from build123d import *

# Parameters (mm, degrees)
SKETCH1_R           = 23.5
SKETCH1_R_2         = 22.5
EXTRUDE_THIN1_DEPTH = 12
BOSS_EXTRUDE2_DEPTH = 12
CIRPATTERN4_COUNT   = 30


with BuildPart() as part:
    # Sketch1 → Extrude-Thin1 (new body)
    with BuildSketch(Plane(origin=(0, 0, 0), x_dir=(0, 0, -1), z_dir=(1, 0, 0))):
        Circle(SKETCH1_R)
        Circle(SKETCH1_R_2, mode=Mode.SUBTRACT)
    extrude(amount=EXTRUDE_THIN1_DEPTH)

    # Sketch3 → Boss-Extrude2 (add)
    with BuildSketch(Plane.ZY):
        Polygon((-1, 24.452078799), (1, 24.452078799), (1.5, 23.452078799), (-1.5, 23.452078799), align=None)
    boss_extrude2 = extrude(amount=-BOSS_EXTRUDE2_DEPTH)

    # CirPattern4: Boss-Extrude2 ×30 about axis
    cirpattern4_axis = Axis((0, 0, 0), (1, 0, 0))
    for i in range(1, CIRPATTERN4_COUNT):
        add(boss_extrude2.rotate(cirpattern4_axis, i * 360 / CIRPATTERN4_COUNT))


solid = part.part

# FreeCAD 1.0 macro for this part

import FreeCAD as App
import Part
import Sketcher

doc = App.newDocument("Part")
body = doc.addObject("PartDesign::Body", "Body")

sketch1 = body.newObject("Sketcher::SketchObject", "Sketch")
sketch1.AttachmentSupport = (doc.getObject("YZ_Plane"), [""])
sketch1.MapMode = "FlatFace"
sketch1.addGeometry([
    Part.Circle(App.Vector(0, 0, 0), App.Vector(0, 0, 1), 23.5),
    Part.Circle(App.Vector(0, 0, 0), App.Vector(0, 0, 1), 22.5),
], False)
sketch1.addConstraint([
    Sketcher.Constraint("Coincident", 0, 3, -1, 1),
    Sketcher.Constraint("Coincident", 1, 3, -1, 1),
    Sketcher.Constraint("Diameter", 0, 47.0),
    Sketcher.Constraint("Diameter", 1, 45.0),
])
pad1 = body.newObject("PartDesign::Pad", "Pad")
pad1.Profile = sketch1
pad1.Length = 12

sketch2 = body.newObject("Sketcher::SketchObject", "Sketch001")
sketch2.AttachmentSupport = (doc.getObject("YZ_Plane"), [""])
sketch2.MapMode = "FlatFace"
sketch2.addGeometry([
    Part.LineSegment(App.Vector(24.452079, 1, 0), App.Vector(24.452079, -1, 0)),
    Part.LineSegment(App.Vector(24.452079, -1, 0), App.Vector(23.452079, -1.5, 0)),
    Part.LineSegment(App.Vector(23.452079, -1.5, 0), App.Vector(23.452079, 1.5, 0)),
    Part.LineSegment(App.Vector(23.452079, 1.5, 0), App.Vector(24.452079, 1, 0)),
], False)
sketch2.addConstraint([
    Sketcher.Constraint("Coincident", 0, 2, 1, 1),
    Sketcher.Constraint("Coincident", 1, 2, 2, 1),
    Sketcher.Constraint("Coincident", 2, 2, 3, 1),
    Sketcher.Constraint("Coincident", 3, 2, 0, 1),
    Sketcher.Constraint("Vertical", 0),
    Sketcher.Constraint("Vertical", 2),
    Sketcher.Constraint("Equal", 1, 3),
    Sketcher.Constraint("DistanceY", 0, 2, 0, 1, 2.0),
    Sketcher.Constraint("DistanceY", 2, 1, 2, 2, 3.0),
    Sketcher.Constraint("DistanceY", 0, 2, -1, 1, 1.0),
    Sketcher.Constraint("DistanceX", 1, 2, 0, 2, 1.0),
    Sketcher.Constraint("DistanceX", -1, 1, 0, 2, 24.452079),
])
pad2 = body.newObject("PartDesign::Pad", "Pad001")
pad2.Profile = sketch2
pad2.Length = 12
doc.recompute()

polarpattern = body.newObject("PartDesign::PolarPattern", "PolarPattern")
polarpattern.Originals = [pad2]
polarpattern.Axis = (doc.getObject("X_Axis"), [""])
polarpattern.Angle = 360
polarpattern.Occurrences = 30
body.Tip = polarpattern

doc.recompute()
